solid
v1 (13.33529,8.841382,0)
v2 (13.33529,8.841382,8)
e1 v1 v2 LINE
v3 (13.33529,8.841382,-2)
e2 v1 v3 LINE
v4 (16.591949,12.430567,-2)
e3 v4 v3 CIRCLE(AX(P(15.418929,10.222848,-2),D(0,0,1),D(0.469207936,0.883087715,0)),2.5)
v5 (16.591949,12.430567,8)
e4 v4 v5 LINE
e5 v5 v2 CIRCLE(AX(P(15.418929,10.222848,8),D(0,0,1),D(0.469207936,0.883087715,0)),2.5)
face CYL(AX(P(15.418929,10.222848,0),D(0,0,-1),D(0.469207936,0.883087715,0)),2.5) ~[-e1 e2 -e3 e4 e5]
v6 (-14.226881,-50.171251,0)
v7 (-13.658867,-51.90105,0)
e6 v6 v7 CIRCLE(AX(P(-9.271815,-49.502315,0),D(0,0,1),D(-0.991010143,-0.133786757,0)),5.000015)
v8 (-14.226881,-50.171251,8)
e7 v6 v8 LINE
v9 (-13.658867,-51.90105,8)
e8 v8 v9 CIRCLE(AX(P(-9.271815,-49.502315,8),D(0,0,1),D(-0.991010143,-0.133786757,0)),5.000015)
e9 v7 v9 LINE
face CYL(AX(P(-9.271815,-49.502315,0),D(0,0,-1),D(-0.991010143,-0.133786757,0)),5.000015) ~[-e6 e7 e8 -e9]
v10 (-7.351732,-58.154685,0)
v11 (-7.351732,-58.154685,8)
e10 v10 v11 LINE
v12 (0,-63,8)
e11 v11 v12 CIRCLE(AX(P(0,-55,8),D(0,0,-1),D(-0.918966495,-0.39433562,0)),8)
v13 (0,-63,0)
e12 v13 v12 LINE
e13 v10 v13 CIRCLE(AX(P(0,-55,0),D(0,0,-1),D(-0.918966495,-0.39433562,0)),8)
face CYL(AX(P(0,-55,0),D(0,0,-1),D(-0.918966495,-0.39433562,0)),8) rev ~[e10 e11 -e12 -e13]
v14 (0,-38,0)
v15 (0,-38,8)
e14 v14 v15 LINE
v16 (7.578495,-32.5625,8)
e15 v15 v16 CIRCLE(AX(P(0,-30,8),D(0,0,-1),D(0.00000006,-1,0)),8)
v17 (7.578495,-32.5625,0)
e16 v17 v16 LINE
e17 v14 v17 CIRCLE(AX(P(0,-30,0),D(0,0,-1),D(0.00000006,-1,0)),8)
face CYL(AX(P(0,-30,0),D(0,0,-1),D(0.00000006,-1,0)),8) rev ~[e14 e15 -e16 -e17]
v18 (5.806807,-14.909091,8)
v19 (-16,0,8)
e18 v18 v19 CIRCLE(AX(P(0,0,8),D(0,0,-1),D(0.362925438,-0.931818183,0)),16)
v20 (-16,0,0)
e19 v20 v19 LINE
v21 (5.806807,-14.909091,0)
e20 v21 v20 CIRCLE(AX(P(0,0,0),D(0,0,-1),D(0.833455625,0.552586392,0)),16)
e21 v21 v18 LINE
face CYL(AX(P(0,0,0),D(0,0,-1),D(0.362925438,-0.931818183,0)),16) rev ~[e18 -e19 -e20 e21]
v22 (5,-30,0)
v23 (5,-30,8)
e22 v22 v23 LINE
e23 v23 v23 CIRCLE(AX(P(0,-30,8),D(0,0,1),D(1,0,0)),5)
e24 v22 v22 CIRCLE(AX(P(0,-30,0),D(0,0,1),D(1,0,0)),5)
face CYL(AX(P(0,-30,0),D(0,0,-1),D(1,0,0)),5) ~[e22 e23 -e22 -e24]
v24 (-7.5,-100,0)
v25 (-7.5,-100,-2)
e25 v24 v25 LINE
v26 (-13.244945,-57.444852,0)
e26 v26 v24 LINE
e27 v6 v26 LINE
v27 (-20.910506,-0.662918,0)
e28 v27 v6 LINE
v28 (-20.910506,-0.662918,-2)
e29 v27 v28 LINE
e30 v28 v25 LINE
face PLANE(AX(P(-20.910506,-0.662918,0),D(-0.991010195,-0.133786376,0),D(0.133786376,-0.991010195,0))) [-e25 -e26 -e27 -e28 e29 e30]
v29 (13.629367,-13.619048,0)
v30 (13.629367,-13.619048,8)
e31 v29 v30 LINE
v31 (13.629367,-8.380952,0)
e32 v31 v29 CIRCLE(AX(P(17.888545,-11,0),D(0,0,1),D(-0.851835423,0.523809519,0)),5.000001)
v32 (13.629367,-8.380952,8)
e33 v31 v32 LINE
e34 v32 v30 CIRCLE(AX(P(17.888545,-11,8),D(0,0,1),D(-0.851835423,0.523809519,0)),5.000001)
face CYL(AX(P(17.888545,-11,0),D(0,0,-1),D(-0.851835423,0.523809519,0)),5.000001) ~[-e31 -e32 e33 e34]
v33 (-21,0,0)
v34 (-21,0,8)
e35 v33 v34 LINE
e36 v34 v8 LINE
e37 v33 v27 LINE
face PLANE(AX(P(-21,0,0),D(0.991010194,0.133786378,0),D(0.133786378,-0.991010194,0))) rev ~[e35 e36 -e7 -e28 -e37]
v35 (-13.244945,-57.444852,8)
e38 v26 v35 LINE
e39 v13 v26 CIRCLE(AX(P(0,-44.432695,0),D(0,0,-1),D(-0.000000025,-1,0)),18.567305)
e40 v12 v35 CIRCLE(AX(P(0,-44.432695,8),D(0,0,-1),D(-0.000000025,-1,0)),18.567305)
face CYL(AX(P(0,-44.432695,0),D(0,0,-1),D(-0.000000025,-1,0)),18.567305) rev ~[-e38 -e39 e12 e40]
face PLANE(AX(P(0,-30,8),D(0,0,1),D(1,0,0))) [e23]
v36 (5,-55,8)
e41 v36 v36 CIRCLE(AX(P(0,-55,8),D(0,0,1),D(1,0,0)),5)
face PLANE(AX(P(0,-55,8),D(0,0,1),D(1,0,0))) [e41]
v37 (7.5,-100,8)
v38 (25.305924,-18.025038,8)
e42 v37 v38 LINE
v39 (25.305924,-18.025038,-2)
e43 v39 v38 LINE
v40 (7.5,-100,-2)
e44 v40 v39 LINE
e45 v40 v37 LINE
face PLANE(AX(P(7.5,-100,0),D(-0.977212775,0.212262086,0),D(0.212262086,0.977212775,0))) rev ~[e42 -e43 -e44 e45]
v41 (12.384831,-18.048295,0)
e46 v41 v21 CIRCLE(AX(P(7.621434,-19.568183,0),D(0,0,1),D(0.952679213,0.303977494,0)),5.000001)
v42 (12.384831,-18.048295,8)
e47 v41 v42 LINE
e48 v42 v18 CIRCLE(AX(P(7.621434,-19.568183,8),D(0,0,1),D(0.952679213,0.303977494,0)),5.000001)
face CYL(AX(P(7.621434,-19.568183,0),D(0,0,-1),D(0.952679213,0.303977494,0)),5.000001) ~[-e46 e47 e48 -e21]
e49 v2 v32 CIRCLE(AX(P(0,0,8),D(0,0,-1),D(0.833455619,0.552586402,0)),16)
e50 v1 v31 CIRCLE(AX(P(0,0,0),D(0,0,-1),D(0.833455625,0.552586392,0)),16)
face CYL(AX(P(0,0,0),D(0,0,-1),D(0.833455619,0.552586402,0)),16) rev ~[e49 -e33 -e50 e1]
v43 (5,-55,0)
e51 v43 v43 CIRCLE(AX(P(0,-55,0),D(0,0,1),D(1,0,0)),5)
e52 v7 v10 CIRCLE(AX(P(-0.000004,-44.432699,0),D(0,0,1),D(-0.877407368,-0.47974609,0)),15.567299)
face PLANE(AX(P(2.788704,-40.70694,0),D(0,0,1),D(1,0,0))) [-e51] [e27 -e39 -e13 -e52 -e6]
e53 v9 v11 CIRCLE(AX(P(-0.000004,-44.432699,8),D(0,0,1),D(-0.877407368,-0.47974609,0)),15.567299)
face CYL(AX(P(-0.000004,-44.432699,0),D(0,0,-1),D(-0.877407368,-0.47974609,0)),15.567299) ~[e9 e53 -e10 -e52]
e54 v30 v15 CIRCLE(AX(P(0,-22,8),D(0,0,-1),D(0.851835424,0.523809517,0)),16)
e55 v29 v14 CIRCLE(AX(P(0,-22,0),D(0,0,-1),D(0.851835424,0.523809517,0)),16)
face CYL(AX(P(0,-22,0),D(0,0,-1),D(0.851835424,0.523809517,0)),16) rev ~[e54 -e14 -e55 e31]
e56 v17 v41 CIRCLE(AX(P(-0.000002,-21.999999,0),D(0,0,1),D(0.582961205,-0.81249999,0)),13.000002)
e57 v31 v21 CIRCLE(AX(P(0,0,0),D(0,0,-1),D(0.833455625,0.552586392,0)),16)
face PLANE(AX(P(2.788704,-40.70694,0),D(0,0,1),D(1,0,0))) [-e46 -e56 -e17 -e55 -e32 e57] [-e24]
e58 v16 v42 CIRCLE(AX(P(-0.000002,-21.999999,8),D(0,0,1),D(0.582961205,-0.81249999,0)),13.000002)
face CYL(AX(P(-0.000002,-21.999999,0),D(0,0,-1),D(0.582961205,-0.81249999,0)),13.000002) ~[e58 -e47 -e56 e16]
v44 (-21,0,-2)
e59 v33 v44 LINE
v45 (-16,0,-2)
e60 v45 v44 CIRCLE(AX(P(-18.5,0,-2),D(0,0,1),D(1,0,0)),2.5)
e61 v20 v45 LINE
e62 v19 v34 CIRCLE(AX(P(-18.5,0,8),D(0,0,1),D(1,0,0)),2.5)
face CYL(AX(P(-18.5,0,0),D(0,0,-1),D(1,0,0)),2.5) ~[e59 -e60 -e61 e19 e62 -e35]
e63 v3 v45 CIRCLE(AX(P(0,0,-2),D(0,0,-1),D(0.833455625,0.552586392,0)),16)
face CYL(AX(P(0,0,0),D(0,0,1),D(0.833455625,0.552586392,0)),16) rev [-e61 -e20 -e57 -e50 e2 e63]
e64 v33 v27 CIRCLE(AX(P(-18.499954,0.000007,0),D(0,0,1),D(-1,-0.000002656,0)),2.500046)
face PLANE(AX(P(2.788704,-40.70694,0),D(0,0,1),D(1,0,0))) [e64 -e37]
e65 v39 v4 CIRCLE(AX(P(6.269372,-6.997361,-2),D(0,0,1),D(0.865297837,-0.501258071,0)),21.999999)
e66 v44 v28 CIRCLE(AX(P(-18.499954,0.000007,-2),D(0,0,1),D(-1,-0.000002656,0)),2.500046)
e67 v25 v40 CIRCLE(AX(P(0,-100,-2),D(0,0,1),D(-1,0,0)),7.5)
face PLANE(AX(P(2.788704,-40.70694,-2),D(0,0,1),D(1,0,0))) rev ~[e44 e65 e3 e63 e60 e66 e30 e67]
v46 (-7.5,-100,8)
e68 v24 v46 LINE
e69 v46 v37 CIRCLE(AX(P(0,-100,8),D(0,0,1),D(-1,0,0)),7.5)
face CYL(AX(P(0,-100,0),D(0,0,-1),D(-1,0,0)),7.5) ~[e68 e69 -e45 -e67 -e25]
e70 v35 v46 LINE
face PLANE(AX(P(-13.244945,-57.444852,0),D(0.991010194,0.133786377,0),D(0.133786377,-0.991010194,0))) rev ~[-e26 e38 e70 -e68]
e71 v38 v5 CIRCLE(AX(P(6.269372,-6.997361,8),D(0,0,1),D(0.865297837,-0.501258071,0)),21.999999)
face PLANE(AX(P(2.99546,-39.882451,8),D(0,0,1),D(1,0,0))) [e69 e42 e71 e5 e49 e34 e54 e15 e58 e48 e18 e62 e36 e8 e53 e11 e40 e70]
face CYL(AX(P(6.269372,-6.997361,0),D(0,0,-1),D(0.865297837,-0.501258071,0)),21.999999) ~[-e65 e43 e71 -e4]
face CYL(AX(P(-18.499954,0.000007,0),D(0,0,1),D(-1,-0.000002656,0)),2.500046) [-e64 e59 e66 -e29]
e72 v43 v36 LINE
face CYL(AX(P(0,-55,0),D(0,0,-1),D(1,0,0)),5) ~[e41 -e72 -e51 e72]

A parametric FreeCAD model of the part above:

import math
import FreeCAD as App
import Part
import Sketcher

V = App.Vector

doc = App.newDocument("Part")
body = doc.addObject("PartDesign::Body", "Body")

# Sketch on XY plane
sketch1 = body.newObject("Sketcher::SketchObject", "Sketch")
sketch1.AttachmentSupport = (doc.getObject("XY_Plane"), [""])
sketch1.MapMode = "FlatFace"
sketch1.addGeometry([
    Part.ArcOfCircle(Part.Circle(V(0, 0, 0), V(0, 0, 1), 16), math.radians(180), math.radians(394)),  # 0
    Part.ArcOfCircle(Part.Circle(V(-18.5, 0, 0), V(0, 0, 1), 2.5), math.radians(0), math.radians(180)),  # 1
    Part.ArcOfCircle(Part.Circle(V(-18.5, 0, 0), V(0, 0, 1), 2.5), math.radians(-180), math.radians(-164.62)),  # 2
    Part.LineSegment(V(-20.9, -0.7, 0), V(-7.5, -100, 0)),  # 3
    Part.ArcOfCircle(Part.Circle(V(0, -100, 0), V(0, 0, 1), 7.5), math.radians(180), math.radians(360)),  # 4
    Part.LineSegment(V(7.5, -100, 0), V(25.3, -18, 0)),  # 5
    Part.ArcOfCircle(Part.Circle(V(6.3, -7, 0), V(0, 0, 1), 22), math.radians(-30), math.radians(62)),  # 6
    Part.ArcOfCircle(Part.Circle(V(15.4, 10.2, 0), V(0, 0, 1), 2.5), math.radians(62), math.radians(214)),  # 7
], False)
sketch1.addConstraint([
    Sketcher.Constraint("Tangent", 0, 1, 1, 1),
    Sketcher.Constraint("Coincident", 1, 2, 2, 1),
    Sketcher.Constraint("Coincident", 2, 2, 3, 1),
    Sketcher.Constraint("Coincident", 3, 2, 4, 1),
    Sketcher.Constraint("Coincident", 4, 2, 5, 1),
    Sketcher.Constraint("Coincident", 5, 2, 6, 1),
    Sketcher.Constraint("Tangent", 6, 2, 7, 1),
    Sketcher.Constraint("Tangent", 7, 2, 0, 2),
    Sketcher.Constraint("Coincident", 0, 3, -1, 1),
    Sketcher.Constraint("Equal", 1, 7),
    Sketcher.Constraint("Symmetric", 3, 2, 4, 2, -2),
    Sketcher.Constraint("PointOnObject", 1, 3, -1),
    Sketcher.Constraint("PointOnObject", 1, 2, -1),
    Sketcher.Constraint("Horizontal", 4, 3, 3, 2),
    Sketcher.Constraint("Radius", 0, 16.0),
    Sketcher.Constraint("Radius", 6, 21.999999),
    Sketcher.Constraint("Radius", 1, 2.5),
    Sketcher.Constraint("Radius", 4, 7.5),
    Sketcher.Constraint("DistanceY", 4, 3, -1, 1, 100.0),
    Sketcher.Constraint("Radius", 2, 2.500046),
    Sketcher.Constraint("DistanceY", 6, 3, -1, 1, 6.997361),
    Sketcher.Constraint("DistanceX", -1, 1, 7, 3, 15.418929),
    Sketcher.Constraint("DistanceY", 2, 2, -1, 1, 0.662918),
    Sketcher.Constraint("DistanceY", 2, 3, 7, 3, 10.222841),
    Sketcher.Constraint("DistanceX", 6, 3, 5, 2, 19.036552),
])
pad1 = body.newObject("PartDesign::Pad", "Pad")
pad1.Profile = sketch1
pad1.Length = 2
pad1.Reversed = True

# Sketch on XY plane
sketch2 = body.newObject("Sketcher::SketchObject", "Sketch001")
sketch2.AttachmentSupport = (doc.getObject("XY_Plane"), [""])
sketch2.MapMode = "FlatFace"
sketch2.addGeometry([
    Part.LineSegment(V(-13.2, -57.4, 0), V(-7.5, -100, 0)),  # 0
    Part.ArcOfCircle(Part.Circle(V(0, -100, 0), V(0, 0, 1), 7.5), math.radians(180), math.radians(360)),  # 1
    Part.LineSegment(V(7.5, -100, 0), V(25.3, -18, 0)),  # 2
    Part.ArcOfCircle(Part.Circle(V(6.3, -7, 0), V(0, 0, 1), 22), math.radians(-30), math.radians(62)),  # 3
    Part.ArcOfCircle(Part.Circle(V(15.4, 10.2, 0), V(0, 0, 1), 2.5), math.radians(62), math.radians(214)),  # 4
    Part.ArcOfCircle(Part.Circle(V(0, 0, 0), V(0, 0, 1), 16), math.radians(-32), math.radians(34)),  # 5
    Part.ArcOfCircle(Part.Circle(V(17.9, -11, 0), V(0, 0, 1), 5), math.radians(148), math.radians(212)),  # 6
    Part.ArcOfCircle(Part.Circle(V(0, -22, 0), V(0, 0, 1), 16), math.radians(-90), math.radians(32)),  # 7
    Part.ArcOfCircle(Part.Circle(V(0, -30, 0), V(0, 0, 1), 8), math.radians(-19), math.radians(270)),  # 8
    Part.ArcOfCircle(Part.Circle(V(0, -22, 0), V(0, 0, 1), 13), math.radians(-54), math.radians(18)),  # 9
    Part.ArcOfCircle(Part.Circle(V(7.6, -19.6, 0), V(0, 0, 1), 5), math.radians(18), math.radians(111)),  # 10
    Part.ArcOfCircle(Part.Circle(V(0, 0, 0), V(0, 0, 1), 16), math.radians(180), math.radians(291)),  # 11
    Part.ArcOfCircle(Part.Circle(V(-18.5, 0, 0), V(0, 0, 1), 2.5), math.radians(0), math.radians(180)),  # 12
    Part.LineSegment(V(-21, 0, 0), V(-14.2, -50.2, 0)),  # 13
    Part.ArcOfCircle(Part.Circle(V(-9.3, -49.5, 0), V(0, 0, 1), 5), math.radians(-172), math.radians(-151)),  # 14
    Part.ArcOfCircle(Part.Circle(V(0, -44.4, 0), V(0, 0, 1), 15.6), math.radians(-151), math.radians(-118)),  # 15
    Part.ArcOfCircle(Part.Circle(V(0, -55, 0), V(0, 0, 1), 8), math.radians(-90), math.radians(203)),  # 16
    Part.ArcOfCircle(Part.Circle(V(0, -44.4, 0), V(0, 0, 1), 18.6), math.radians(-136), math.radians(-90)),  # 17
    Part.Circle(V(0, -30, 0), V(0, 0, 1), 5),  # 18
    Part.Circle(V(0, -55, 0), V(0, 0, 1), 5),  # 19
], False)
sketch2.addConstraint([
    Sketcher.Constraint("Coincident", 0, 2, 1, 1),
    Sketcher.Constraint("Coincident", 1, 2, 2, 1),
    Sketcher.Constraint("Coincident", 2, 2, 3, 1),
    Sketcher.Constraint("Tangent", 3, 2, 4, 1),
    Sketcher.Constraint("Tangent", 4, 2, 5, 2),
    Sketcher.Constraint("Tangent", 5, 1, 6, 1),
    Sketcher.Constraint("Tangent", 6, 2, 7, 2),
    Sketcher.Constraint("Tangent", 7, 1, 8, 2),
    Sketcher.Constraint("Coincident", 8, 1, 9, 1),
    Sketcher.Constraint("Tangent", 9, 2, 10, 1),
    Sketcher.Constraint("Tangent", 10, 2, 11, 2),
    Sketcher.Constraint("Tangent", 11, 1, 12, 1),
    Sketcher.Constraint("Coincident", 12, 2, 13, 1),
    Sketcher.Constraint("Tangent", 13, 2, 14, 1),
    Sketcher.Constraint("Tangent", 14, 2, 15, 1),
    Sketcher.Constraint("Coincident", 15, 2, 16, 2),
    Sketcher.Constraint("Tangent", 16, 1, 17, 2),
    Sketcher.Constraint("Coincident", 17, 1, 0, 1),
    Sketcher.Constraint("Coincident", 5, 3, -1, 1),
    Sketcher.Constraint("Coincident", 11, 3, -1, 1),
    Sketcher.Constraint("Coincident", 9, 3, 7, 3),
    Sketcher.Constraint("Coincident", 17, 3, 15, 3),
    Sketcher.Constraint("Coincident", 18, 3, 8, 3),
    Sketcher.Constraint("Coincident", 19, 3, 16, 3),
    Sketcher.Constraint("Equal", 5, 7),
    Sketcher.Constraint("Equal", 6, 10),
    Sketcher.Constraint("Equal", 7, 11),
    Sketcher.Constraint("Equal", 4, 12),
    Sketcher.Constraint("Equal", 8, 16),
    Sketcher.Constraint("Equal", 10, 18),
    Sketcher.Constraint("Equal", 18, 19),
    Sketcher.Constraint("Symmetric", 0, 2, 1, 2, -2),
    Sketcher.Constraint("PointOnObject", 7, 3, -2),
    Sketcher.Constraint("PointOnObject", 8, 3, -2),
    Sketcher.Constraint("PointOnObject", 12, 3, -1),
    Sketcher.Constraint("PointOnObject", 16, 3, -2),
    Sketcher.Constraint("PointOnObject", 17, 3, -2),
    Sketcher.Constraint("PointOnObject", 12, 2, -1),
    Sketcher.Constraint("Parallel", 0, 13),
    Sketcher.Constraint("Horizontal", 1, 3, 0, 2),
    Sketcher.Constraint("Diameter", 18, 10.0),
    Sketcher.Constraint("Radius", 3, 21.999999),
    Sketcher.Constraint("Radius", 5, 16.0),
    Sketcher.Constraint("Radius", 8, 8.0),
    Sketcher.Constraint("Radius", 9, 13.000002),
    Sketcher.Constraint("Radius", 1, 7.5),
    Sketcher.Constraint("Radius", 4, 2.5),
    Sketcher.Constraint("DistanceY", 1, 3, -1, 1, 100.0),
    Sketcher.Constraint("DistanceY", 6, 3, -1, 1, 11.0),
    Sketcher.Constraint("DistanceY", 16, 3, -1, 1, 55.0),
    Sketcher.Constraint("Radius", 15, 15.567299),
    Sketcher.Constraint("Radius", 14, 5.000015),
    Sketcher.Constraint("Radius", 17, 18.567305),
    Sketcher.Constraint("DistanceY", 14, 2, 13, 2, 1.729799),
    Sketcher.Constraint("DistanceY", 3, 3, -1, 1, 6.997361),
    Sketcher.Constraint("DistanceX", -1, 1, 4, 3, 15.418929),
    Sketcher.Constraint("DistanceX", 6, 3, 2, 2, 7.417379),
])
pad2 = body.newObject("PartDesign::Pad", "Pad001")
pad2.Profile = sketch2
pad2.Length = 8

doc.recompute()
